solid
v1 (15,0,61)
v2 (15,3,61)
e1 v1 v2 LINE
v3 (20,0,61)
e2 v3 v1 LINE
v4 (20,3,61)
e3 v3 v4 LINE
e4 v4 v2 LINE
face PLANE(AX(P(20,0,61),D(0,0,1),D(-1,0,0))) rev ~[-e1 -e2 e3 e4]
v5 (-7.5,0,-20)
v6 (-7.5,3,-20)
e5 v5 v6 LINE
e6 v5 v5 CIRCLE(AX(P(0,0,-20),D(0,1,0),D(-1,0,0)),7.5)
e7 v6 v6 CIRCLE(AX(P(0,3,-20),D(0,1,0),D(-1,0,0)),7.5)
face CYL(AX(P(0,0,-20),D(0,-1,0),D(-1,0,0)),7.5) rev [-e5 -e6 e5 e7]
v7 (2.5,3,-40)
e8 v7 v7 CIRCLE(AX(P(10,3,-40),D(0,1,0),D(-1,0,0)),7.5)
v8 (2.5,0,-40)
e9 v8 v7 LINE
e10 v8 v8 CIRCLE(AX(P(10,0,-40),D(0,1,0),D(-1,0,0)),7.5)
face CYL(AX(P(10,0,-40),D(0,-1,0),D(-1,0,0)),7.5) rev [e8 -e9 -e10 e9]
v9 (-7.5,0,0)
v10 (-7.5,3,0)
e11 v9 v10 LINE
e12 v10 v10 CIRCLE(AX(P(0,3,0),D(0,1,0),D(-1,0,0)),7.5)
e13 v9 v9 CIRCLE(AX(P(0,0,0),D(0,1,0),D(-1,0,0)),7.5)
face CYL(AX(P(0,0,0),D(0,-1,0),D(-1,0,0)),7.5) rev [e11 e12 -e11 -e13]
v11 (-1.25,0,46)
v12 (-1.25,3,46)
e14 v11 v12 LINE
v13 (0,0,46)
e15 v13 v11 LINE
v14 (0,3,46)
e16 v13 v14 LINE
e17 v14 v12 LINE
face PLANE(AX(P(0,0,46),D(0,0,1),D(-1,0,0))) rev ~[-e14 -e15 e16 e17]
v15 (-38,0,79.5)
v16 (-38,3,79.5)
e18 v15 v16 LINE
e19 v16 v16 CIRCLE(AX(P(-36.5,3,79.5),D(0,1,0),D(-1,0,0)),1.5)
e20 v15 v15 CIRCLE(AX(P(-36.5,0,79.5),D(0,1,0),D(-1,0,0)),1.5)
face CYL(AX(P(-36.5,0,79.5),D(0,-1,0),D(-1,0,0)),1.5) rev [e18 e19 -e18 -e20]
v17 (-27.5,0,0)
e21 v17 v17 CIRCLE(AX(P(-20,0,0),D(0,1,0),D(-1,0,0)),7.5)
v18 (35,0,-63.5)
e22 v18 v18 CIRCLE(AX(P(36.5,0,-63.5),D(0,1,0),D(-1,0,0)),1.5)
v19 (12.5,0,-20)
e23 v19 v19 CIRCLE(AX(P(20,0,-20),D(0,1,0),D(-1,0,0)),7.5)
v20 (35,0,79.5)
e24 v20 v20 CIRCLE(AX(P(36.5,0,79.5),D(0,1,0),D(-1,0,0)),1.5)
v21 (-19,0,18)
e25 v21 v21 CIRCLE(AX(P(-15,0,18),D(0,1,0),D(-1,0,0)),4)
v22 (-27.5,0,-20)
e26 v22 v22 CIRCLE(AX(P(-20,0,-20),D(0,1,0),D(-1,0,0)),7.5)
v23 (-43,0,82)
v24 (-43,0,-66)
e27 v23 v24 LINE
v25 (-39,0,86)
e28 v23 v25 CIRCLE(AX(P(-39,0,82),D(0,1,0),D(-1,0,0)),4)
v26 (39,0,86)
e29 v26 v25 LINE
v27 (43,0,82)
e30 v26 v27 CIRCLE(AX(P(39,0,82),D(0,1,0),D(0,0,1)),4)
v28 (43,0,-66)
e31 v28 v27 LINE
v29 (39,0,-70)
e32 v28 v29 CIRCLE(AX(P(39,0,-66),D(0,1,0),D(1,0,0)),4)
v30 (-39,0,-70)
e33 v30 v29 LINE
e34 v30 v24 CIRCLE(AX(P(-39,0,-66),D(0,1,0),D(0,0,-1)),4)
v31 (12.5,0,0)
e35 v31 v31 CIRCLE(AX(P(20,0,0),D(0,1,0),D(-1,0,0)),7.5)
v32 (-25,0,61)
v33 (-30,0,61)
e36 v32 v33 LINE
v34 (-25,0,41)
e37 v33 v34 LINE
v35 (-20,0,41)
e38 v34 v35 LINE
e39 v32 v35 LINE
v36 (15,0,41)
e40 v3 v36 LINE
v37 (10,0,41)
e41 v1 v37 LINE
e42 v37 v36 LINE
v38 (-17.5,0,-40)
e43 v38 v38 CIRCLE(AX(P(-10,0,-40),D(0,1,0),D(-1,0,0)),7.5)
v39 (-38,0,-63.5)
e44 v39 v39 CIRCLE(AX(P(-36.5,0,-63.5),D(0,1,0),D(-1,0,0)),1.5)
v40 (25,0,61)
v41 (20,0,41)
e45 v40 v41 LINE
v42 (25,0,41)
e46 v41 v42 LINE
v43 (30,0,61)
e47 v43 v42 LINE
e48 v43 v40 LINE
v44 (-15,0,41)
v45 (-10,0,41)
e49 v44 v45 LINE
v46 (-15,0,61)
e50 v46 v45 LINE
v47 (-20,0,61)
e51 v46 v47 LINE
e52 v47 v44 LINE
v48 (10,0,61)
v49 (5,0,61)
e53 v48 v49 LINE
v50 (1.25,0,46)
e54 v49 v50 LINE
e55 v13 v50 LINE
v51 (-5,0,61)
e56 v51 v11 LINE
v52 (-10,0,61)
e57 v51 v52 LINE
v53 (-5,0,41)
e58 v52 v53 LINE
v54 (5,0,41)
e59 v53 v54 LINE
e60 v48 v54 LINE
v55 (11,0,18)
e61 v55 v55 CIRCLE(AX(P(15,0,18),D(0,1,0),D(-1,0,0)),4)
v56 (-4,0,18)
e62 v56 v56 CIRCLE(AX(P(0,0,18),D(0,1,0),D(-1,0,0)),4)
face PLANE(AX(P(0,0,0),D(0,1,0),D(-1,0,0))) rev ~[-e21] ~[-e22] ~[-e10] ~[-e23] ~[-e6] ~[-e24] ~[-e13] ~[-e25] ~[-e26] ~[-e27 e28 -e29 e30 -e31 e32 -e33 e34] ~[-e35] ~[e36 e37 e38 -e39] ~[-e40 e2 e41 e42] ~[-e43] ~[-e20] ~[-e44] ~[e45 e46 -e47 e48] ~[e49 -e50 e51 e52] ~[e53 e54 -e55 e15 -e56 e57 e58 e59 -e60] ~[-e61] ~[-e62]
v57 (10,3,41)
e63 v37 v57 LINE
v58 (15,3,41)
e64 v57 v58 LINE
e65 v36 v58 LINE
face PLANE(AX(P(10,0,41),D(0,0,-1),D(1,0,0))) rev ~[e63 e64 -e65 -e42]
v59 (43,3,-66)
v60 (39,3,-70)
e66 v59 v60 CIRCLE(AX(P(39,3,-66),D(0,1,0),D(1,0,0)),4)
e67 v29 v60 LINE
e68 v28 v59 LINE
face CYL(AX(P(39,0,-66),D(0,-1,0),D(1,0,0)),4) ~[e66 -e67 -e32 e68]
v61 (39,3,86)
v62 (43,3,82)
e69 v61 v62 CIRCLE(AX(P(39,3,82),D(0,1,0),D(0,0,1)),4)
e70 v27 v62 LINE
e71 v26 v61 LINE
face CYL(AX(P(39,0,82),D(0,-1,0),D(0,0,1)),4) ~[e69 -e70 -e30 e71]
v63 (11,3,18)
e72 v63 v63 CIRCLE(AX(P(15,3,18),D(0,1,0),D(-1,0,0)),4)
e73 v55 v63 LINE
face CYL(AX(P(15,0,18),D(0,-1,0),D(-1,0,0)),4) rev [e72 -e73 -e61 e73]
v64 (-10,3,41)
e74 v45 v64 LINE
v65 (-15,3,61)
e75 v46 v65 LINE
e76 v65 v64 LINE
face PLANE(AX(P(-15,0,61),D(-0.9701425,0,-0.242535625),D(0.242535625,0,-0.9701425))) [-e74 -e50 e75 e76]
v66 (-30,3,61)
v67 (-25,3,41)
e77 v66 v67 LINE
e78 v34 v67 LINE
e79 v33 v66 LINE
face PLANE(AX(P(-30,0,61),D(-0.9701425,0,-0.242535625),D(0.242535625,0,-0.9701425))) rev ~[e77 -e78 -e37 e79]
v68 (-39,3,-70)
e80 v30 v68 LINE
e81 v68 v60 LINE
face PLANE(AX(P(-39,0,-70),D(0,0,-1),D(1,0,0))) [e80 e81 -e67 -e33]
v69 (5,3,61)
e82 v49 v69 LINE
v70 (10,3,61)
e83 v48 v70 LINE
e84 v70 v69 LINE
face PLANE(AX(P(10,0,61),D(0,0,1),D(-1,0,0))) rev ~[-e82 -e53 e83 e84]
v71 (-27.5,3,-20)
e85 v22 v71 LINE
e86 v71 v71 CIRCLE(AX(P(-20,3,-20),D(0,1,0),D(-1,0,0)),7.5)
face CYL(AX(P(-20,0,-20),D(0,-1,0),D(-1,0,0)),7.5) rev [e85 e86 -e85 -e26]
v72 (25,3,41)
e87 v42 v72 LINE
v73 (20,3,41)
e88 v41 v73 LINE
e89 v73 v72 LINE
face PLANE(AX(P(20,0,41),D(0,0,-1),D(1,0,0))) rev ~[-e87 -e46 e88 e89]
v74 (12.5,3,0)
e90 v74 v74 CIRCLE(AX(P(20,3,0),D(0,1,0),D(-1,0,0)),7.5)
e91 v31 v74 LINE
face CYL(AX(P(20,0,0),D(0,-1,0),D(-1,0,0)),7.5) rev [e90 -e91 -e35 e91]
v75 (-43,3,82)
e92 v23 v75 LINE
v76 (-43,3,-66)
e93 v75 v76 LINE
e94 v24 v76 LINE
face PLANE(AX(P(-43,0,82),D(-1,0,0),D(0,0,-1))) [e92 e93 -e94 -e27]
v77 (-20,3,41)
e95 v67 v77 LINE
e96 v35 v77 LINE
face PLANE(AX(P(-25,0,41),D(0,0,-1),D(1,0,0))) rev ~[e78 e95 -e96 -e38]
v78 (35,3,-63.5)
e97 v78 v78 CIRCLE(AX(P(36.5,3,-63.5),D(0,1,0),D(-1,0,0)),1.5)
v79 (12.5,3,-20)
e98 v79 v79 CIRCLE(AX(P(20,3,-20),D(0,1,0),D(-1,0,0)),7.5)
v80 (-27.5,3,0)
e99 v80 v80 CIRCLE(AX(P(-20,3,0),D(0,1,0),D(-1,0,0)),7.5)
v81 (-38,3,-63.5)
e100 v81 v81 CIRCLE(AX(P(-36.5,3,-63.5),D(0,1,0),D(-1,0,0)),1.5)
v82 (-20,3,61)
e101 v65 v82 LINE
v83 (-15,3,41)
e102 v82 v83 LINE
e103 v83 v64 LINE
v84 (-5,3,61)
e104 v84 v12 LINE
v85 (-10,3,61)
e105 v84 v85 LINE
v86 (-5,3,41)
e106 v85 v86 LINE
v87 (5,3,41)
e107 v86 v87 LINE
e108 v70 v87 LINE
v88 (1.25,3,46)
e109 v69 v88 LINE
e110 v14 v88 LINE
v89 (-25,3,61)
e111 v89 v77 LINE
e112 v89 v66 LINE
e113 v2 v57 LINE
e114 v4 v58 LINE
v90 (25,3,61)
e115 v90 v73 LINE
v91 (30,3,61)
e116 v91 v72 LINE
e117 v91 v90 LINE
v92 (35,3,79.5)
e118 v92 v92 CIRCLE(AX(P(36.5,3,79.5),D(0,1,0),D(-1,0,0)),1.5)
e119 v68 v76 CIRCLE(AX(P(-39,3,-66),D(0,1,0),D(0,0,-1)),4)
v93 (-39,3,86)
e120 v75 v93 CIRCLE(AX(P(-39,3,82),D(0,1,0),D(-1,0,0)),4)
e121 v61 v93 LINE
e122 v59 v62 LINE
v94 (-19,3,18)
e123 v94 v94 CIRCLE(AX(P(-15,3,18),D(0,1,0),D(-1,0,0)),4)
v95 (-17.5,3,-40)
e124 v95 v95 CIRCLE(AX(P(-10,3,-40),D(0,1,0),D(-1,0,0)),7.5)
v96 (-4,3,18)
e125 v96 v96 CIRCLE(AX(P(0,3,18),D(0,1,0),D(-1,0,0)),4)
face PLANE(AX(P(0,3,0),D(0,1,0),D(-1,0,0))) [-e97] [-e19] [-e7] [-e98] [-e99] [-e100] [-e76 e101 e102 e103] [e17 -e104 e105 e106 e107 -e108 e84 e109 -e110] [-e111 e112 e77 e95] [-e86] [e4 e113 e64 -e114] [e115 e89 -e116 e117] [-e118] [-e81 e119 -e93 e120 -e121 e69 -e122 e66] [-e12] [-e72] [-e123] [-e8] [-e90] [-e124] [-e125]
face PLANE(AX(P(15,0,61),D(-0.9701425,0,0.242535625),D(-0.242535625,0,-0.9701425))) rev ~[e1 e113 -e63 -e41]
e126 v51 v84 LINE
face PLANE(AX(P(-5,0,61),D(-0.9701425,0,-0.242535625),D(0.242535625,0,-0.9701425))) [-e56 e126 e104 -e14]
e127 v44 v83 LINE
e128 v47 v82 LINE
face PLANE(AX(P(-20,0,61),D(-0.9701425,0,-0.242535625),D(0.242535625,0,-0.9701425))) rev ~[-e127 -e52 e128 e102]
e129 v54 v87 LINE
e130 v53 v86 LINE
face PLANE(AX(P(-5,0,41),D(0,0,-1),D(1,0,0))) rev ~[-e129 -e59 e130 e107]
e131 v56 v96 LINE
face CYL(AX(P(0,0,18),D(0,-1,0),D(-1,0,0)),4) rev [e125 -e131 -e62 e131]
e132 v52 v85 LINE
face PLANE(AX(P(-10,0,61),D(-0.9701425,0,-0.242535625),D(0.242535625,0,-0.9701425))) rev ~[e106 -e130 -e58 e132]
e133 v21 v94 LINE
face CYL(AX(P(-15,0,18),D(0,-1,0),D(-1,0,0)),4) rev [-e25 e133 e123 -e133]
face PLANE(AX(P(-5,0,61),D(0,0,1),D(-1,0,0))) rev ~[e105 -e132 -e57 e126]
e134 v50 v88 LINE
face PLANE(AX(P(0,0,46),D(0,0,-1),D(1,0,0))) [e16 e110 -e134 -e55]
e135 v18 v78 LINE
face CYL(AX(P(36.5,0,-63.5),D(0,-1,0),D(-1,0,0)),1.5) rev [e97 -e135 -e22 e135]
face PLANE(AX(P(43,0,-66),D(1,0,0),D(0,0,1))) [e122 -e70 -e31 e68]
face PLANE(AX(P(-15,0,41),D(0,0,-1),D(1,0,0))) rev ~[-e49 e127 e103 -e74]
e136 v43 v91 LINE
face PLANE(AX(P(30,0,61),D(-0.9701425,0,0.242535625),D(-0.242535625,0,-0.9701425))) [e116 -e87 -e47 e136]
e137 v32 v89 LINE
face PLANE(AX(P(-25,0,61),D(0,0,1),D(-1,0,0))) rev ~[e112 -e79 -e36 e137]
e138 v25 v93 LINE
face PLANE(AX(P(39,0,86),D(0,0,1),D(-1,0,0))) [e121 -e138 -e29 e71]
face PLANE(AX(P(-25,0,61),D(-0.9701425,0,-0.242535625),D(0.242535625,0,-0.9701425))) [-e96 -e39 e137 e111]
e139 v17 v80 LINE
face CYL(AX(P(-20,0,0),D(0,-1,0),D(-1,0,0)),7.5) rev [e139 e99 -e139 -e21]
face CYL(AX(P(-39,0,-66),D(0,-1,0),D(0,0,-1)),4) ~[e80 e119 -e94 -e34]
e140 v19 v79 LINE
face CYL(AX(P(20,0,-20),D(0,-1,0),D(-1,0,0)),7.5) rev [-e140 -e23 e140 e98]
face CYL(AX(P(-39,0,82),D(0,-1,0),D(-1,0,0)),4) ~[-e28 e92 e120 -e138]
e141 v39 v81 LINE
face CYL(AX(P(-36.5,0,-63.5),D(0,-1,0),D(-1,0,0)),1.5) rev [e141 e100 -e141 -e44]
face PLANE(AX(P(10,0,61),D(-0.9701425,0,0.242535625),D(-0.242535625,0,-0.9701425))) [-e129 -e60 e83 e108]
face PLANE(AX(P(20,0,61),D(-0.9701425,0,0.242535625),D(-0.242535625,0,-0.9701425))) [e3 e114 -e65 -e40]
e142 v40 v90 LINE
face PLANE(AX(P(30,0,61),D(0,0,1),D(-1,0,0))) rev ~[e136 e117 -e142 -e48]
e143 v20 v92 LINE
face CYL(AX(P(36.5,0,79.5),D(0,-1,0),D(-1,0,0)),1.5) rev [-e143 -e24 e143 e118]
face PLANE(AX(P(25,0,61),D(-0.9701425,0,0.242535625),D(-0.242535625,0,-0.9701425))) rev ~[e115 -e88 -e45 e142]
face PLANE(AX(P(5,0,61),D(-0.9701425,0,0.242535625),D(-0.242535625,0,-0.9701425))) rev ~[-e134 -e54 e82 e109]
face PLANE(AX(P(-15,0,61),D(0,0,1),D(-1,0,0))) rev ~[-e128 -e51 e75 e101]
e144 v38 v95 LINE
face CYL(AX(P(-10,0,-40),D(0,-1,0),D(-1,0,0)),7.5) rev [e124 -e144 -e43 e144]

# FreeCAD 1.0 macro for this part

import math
import FreeCAD as App
import Part
import Sketcher
from FreeCAD import Vector
Q = App.Units.Quantity


def add_polygon(sketch, points):
    """Adds a closed chain of lines whose ends are joined by coincident constraints."""
    first, n = sketch.GeometryCount, len(points)
    for a, b in zip(points, points[1:] + points[:1]):
        sketch.addGeometry(Part.LineSegment(App.Vector(*a, 0), App.Vector(*b, 0)), False)
    for i in range(n):
        sketch.addConstraint(Sketcher.Constraint("Coincident", first + i, 2, first + (i + 1) % n, 1))

doc = App.newDocument("Part")
body = doc.addObject("PartDesign::Body", "Body")

# Sketch on XZ plane
sketch1 = body.newObject("Sketcher::SketchObject", "Sketch")
sketch1.AttachmentSupport = (doc.getObject("XZ_Plane"), [""])
sketch1.MapMode = "FlatFace"
sketch1.addGeometry(Part.LineSegment(Vector(-39, 86, 0), Vector(39, 86, 0)), False)  # 0
sketch1.addGeometry(Part.ArcOfCircle(Part.Circle(Vector(39, 82, 0), Vector(0, 0, 1), 4), math.radians(0), math.radians(90)), False)  # 1
sketch1.addGeometry(Part.LineSegment(Vector(43, 82, 0), Vector(43, -66, 0)), False)  # 2
sketch1.addGeometry(Part.ArcOfCircle(Part.Circle(Vector(39, -66, 0), Vector(0, 0, 1), 4), math.radians(-90), math.radians(0)), False)  # 3
sketch1.addGeometry(Part.LineSegment(Vector(39, -70, 0), Vector(-39, -70, 0)), False)  # 4
sketch1.addGeometry(Part.ArcOfCircle(Part.Circle(Vector(-39, -66, 0), Vector(0, 0, 1), 4), math.radians(180), math.radians(270)), False)  # 5
sketch1.addGeometry(Part.LineSegment(Vector(-43, -66, 0), Vector(-43, 82, 0)), False)  # 6
sketch1.addGeometry(Part.ArcOfCircle(Part.Circle(Vector(-39, 82, 0), Vector(0, 0, 1), 4), math.radians(90), math.radians(180)), False)  # 7
sketch1.addGeometry(Part.Circle(Vector(36.5, -63.5, 0), Vector(0, 0, 1), 1.5), False)  # 8
sketch1.addGeometry(Part.Circle(Vector(10, -40, 0), Vector(0, 0, 1), 7.5), False)  # 9
sketch1.addGeometry(Part.Circle(Vector(20, -20, 0), Vector(0, 0, 1), 7.5), False)  # 10
sketch1.addGeometry(Part.Circle(Vector(20, 0, 0), Vector(0, 0, 1), 7.5), False)  # 11
sketch1.addGeometry(Part.Circle(Vector(-10, -40, 0), Vector(0, 0, 1), 7.5), False)  # 12
sketch1.addGeometry(Part.Circle(Vector(-36.5, -63.5, 0), Vector(0, 0, 1), 1.5), False)  # 13
sketch1.addGeometry(Part.Circle(Vector(0, -20, 0), Vector(0, 0, 1), 7.5), False)  # 14
sketch1.addGeometry(Part.Circle(Vector(-20, -20, 0), Vector(0, 0, 1), 7.5), False)  # 15
sketch1.addGeometry(Part.Circle(Vector(0, 0, 0), Vector(0, 0, 1), 7.5), False)  # 16
sketch1.addGeometry(Part.Circle(Vector(-20, 0, 0), Vector(0, 0, 1), 7.5), False)  # 17
sketch1.addGeometry(Part.Circle(Vector(15, 18, 0), Vector(0, 0, 1), 4), False)  # 18
add_polygon(sketch1, [(25, 41), (30, 61), (25, 61), (20, 41)])  # lines 19-22
sketch1.addGeometry(Part.Circle(Vector(36.5, 79.5, 0), Vector(0, 0, 1), 1.5), False)  # 23
add_polygon(sketch1, [(15, 41), (20, 61), (15, 61), (10, 41)])  # lines 24-27
sketch1.addGeometry(Part.Circle(Vector(0, 18, 0), Vector(0, 0, 1), 4), False)  # 28
sketch1.addGeometry(Part.Circle(Vector(-15, 18, 0), Vector(0, 0, 1), 4), False)  # 29
add_polygon(sketch1, [(5, 41), (10, 61), (5, 61), (1.2, 46), (-1.2, 46), (-5, 61), (-10, 61), (-5, 41)])  # lines 30-37
add_polygon(sketch1, [(-15, 61), (-20, 61), (-15, 41), (-10, 41)])  # lines 38-41
add_polygon(sketch1, [(-25, 61), (-30, 61), (-25, 41), (-20, 41)])  # lines 42-45
sketch1.addGeometry(Part.Circle(Vector(-36.5, 79.5, 0), Vector(0, 0, 1), 1.5), False)  # 46
sketch1.addConstraint([
    Sketcher.Constraint("Tangent", 0, 2, 1, 2),
    Sketcher.Constraint("Tangent", 1, 1, 2, 1),
    Sketcher.Constraint("Tangent", 2, 2, 3, 2),
    Sketcher.Constraint("Tangent", 3, 1, 4, 1),
    Sketcher.Constraint("Tangent", 4, 2, 5, 2),
    Sketcher.Constraint("Tangent", 5, 1, 6, 1),
    Sketcher.Constraint("Tangent", 6, 2, 7, 2),
    Sketcher.Constraint("Tangent", 7, 1, 0, 1),
    Sketcher.Constraint("Horizontal", 0),
    Sketcher.Constraint("Vertical", 2),
    Sketcher.Constraint("Horizontal", 4),
    Sketcher.Constraint("Vertical", 6),
    Sketcher.Constraint("Horizontal", 20),
    Sketcher.Constraint("Horizontal", 22),
    Sketcher.Constraint("Horizontal", 25),
    Sketcher.Constraint("Horizontal", 27),
    Sketcher.Constraint("Horizontal", 31),
    Sketcher.Constraint("Horizontal", 33),
    Sketcher.Constraint("Horizontal", 35),
    Sketcher.Constraint("Horizontal", 37),
    Sketcher.Constraint("Horizontal", 38),
    Sketcher.Constraint("Horizontal", 40),
    Sketcher.Constraint("Horizontal", 42),
    Sketcher.Constraint("Horizontal", 44),
    Sketcher.Constraint("Coincident", 16, 3, -1, 1),
    Sketcher.Constraint("Equal", 1, 3),
    Sketcher.Constraint("Equal", 3, 5),
    Sketcher.Constraint("Equal", 5, 7),
    Sketcher.Constraint("Equal", 9, 10),
    Sketcher.Constraint("Equal", 10, 11),
    Sketcher.Constraint("Equal", 11, 12),
    Sketcher.Constraint("Equal", 8, 13),
    Sketcher.Constraint("Equal", 12, 14),
    Sketcher.Constraint("Equal", 14, 15),
    Sketcher.Constraint("Equal", 15, 16),
    Sketcher.Constraint("Equal", 16, 17),
    Sketcher.Constraint("Equal", 7, 18),
    Sketcher.Constraint("Equal", 13, 23),
    Sketcher.Constraint("Equal", 18, 28),
    Sketcher.Constraint("Equal", 28, 29),
    Sketcher.Constraint("Equal", 23, 46),
    Sketcher.Constraint("Symmetric", 11, 3, 17, 3, -1, 1),
    Sketcher.Constraint("Symmetric", 9, 3, 12, 3, -2),
    Sketcher.Constraint("Symmetric", 8, 3, 13, 3, -2),
    Sketcher.Constraint("Symmetric", 10, 3, 15, 3, -2),
    Sketcher.Constraint("Symmetric", 18, 3, 29, 3, -2),
    Sketcher.Constraint("Symmetric", 23, 3, 46, 3, -2),
    Sketcher.Constraint("Symmetric", 31, 2, 34, 2, -2),
    Sketcher.Constraint("Symmetric", 24, 2, 38, 2, -2),
    Sketcher.Constraint("Symmetric", 27, 2, 39, 2, -2),
    Sketcher.Constraint("Symmetric", 19, 2, 42, 2, -2),
    Sketcher.Constraint("Symmetric", 22, 2, 43, 2, -2),
    Sketcher.Constraint("PointOnObject", 11, 3, -1),
    Sketcher.Constraint("PointOnObject", 14, 3, -2),
    Sketcher.Constraint("PointOnObject", 28, 3, -2),
    Sketcher.Constraint("Parallel", 19, 21),
    Sketcher.Constraint("Parallel", 21, 24),
    Sketcher.Constraint("Parallel", 24, 26),
    Sketcher.Constraint("Parallel", 26, 30),
    Sketcher.Constraint("Parallel", 30, 32),
    Sketcher.Constraint("Parallel", 34, 36),
    Sketcher.Constraint("Parallel", 36, 39),
    Sketcher.Constraint("Parallel", 39, 41),
    Sketcher.Constraint("Parallel", 43, 45),
    Sketcher.Constraint("Horizontal", 10, 3, 14, 3),
    Sketcher.Constraint("Horizontal", 18, 3, 28, 3),
    Sketcher.Constraint("Horizontal", 20, 2, 24, 2),
    Sketcher.Constraint("Horizontal", 22, 2, 26, 2),
    Sketcher.Constraint("Horizontal", 25, 2, 30, 2),
    Sketcher.Constraint("Horizontal", 27, 2, 36, 2),
    Sketcher.Constraint("Vertical", 10, 3, 11, 3),
    Sketcher.Constraint("Vertical", 8, 3, 23, 3),
    Sketcher.Constraint("Vertical", 11, 3, 21, 2),
    Sketcher.Constraint("Vertical", 20, 2, 22, 2),
    Sketcher.Constraint("Vertical", 21, 2, 24, 2),
    Sketcher.Constraint("Vertical", 18, 3, 25, 2),
    Sketcher.Constraint("Vertical", 9, 3, 26, 2),
    Sketcher.Constraint("Vertical", 25, 2, 27, 2),
    Sketcher.Constraint("Vertical", 26, 2, 30, 2),
    Sketcher.Constraint("Vertical", 12, 3, 35, 2),
    Sketcher.Constraint("Vertical", 34, 2, 36, 2),
    Sketcher.Constraint("Vertical", 35, 2, 40, 2),
    Sketcher.Constraint("Vertical", 38, 2, 44, 2),
    Sketcher.Constraint("Diameter", 8, Q("3 mm")),
    Sketcher.Constraint("Diameter", 9, Q("15 mm")),
    Sketcher.Constraint("Diameter", 18, Q("8 mm")),
    Sketcher.Constraint("DistanceX", 0, 1, 0, 2, Q("78 mm")),
    Sketcher.Constraint("DistanceX", 20, 2, 20, 1, Q("5 mm")),
    Sketcher.Constraint("DistanceX", 37, 1, 37, 2, Q("10 mm")),
    Sketcher.Constraint("DistanceY", 2, 2, 2, 1, Q("148 mm")),
    Sketcher.Constraint("DistanceX", 33, 2, 33, 1, Q("2.5 mm")),
    Sketcher.Constraint("DistanceX", -1, 1, 1, 3, Q("39 mm")),
    Sketcher.Constraint("DistanceY", -1, 1, 1, 3, Q("82 mm")),
    Sketcher.Constraint("DistanceY", 9, 3, -1, 1, Q("40 mm")),
    Sketcher.Constraint("DistanceY", 10, 3, -1, 1, Q("20 mm")),
    Sketcher.Constraint("DistanceY", -1, 1, 18, 3, Q("18 mm")),
    Sketcher.Constraint("DistanceY", -1, 1, 19, 2, Q("61 mm")),
    Sketcher.Constraint("DistanceY", -1, 1, 21, 2, Q("41 mm")),
    Sketcher.Constraint("DistanceX", 13, 3, 8, 3, Q("73 mm")),
    Sketcher.Constraint("DistanceY", 8, 3, -1, 1, Q("63.5 mm")),
    Sketcher.Constraint("DistanceY", -1, 1, 23, 3, Q("79.5 mm")),
])
pad1 = body.newObject("PartDesign::Pad", "Pad")
pad1.Profile = sketch1
pad1.Length = 3
pad1.Reversed = True

doc.recompute()
